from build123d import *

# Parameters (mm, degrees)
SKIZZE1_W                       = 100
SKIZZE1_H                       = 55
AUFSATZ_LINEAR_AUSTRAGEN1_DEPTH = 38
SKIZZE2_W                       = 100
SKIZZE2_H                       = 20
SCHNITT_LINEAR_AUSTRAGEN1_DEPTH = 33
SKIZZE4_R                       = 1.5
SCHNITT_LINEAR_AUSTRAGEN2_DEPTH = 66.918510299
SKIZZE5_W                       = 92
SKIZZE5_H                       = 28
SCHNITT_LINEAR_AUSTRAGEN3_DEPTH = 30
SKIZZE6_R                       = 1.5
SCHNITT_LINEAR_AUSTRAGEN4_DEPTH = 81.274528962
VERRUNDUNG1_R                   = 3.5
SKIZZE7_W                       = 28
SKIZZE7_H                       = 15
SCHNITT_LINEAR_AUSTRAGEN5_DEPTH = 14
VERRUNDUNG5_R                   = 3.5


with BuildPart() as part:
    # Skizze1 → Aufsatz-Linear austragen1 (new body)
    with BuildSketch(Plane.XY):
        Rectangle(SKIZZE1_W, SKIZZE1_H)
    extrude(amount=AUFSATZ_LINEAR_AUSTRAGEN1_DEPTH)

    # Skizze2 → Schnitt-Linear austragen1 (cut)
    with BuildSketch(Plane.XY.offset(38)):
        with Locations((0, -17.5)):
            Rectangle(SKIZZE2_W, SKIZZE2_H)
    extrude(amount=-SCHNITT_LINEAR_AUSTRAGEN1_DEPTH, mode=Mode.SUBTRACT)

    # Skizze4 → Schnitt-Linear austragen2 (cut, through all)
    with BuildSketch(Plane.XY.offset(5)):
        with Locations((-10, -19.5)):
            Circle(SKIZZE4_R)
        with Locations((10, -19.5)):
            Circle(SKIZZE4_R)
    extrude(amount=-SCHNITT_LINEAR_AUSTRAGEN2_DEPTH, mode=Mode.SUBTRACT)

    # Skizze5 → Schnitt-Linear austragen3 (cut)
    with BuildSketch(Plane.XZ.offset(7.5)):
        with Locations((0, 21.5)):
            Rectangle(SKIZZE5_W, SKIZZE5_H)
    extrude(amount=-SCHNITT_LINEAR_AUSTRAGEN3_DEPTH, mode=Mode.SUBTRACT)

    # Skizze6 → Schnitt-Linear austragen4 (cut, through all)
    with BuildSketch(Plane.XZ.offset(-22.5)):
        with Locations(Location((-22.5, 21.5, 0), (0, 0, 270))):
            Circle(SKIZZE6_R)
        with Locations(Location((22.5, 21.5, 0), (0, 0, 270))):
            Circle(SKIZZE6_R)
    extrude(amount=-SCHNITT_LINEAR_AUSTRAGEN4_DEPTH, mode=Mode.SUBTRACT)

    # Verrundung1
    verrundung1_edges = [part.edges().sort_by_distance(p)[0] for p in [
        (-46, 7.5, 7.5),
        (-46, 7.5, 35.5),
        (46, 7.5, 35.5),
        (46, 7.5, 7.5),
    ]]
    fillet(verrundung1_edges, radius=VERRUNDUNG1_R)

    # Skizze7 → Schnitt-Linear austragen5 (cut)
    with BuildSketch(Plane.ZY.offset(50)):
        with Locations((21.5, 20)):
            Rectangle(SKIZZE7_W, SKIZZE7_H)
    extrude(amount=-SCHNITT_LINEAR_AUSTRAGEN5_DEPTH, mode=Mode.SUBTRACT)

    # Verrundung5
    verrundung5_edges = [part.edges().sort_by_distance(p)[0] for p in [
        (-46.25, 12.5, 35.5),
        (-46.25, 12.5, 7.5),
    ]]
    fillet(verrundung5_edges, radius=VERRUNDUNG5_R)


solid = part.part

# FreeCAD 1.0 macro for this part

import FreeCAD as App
import Part
import Sketcher

V = App.Vector
Q = App.Units.Quantity


def edges_at(feature, points):
    """Names of the edges that pass closest to the given points."""
    edges = feature.Shape.Edges
    near = lambda p: min(range(len(edges)), key=lambda i: edges[i].distToShape(Part.Vertex(*p))[0])
    return sorted({f"Edge{near(p) + 1}" for p in points})

doc = App.newDocument("Part")
body = doc.addObject("PartDesign::Body", "Body")

sketch1 = body.newObject("Sketcher::SketchObject", "Sketch")
sketch1.AttachmentSupport = (doc.getObject("XY_Plane"), [""])
sketch1.MapMode = "FlatFace"
sketch1.addGeometry([
    Part.LineSegment(V(-50, 28, 0), V(-50, -28, 0)),
    Part.LineSegment(V(-50, -28, 0), V(50, -28, 0)),
    Part.LineSegment(V(50, -28, 0), V(50, 28, 0)),
    Part.LineSegment(V(50, 28, 0), V(-50, 28, 0)),
], False)
sketch1.addConstraint([
    Sketcher.Constraint("Coincident", 0, 2, 1, 1),
    Sketcher.Constraint("Coincident", 1, 2, 2, 1),
    Sketcher.Constraint("Coincident", 2, 2, 3, 1),
    Sketcher.Constraint("Coincident", 3, 2, 0, 1),
    Sketcher.Constraint("Vertical", 0),
    Sketcher.Constraint("Horizontal", 1),
    Sketcher.Constraint("Vertical", 2),
    Sketcher.Constraint("Horizontal", 3),
    Sketcher.Constraint("Symmetric", 0, 2, 2, 2, -1, 1),
    Sketcher.Constraint("DistanceX", 1, 1, 1, 2, Q("100 mm")),
    Sketcher.Constraint("DistanceY", 0, 2, 0, 1, Q("55 mm")),
])
pad1 = body.newObject("PartDesign::Pad", "Pad")
pad1.Profile = sketch1
pad1.Length = 38

sketch2 = body.newObject("Sketcher::SketchObject", "Sketch001")
sketch2.AttachmentSupport = (doc.getObject("XY_Plane"), [""])
sketch2.MapMode = "FlatFace"
sketch2.AttachmentOffset = App.Placement(V(0, 0, 38), App.Rotation())
sketch2.addGeometry([
    Part.LineSegment(V(-50, -8, 0), V(-50, -28, 0)),
    Part.LineSegment(V(-50, -28, 0), V(50, -28, 0)),
    Part.LineSegment(V(50, -28, 0), V(50, -8, 0)),
    Part.LineSegment(V(50, -8, 0), V(-50, -8, 0)),
], False)
sketch2.addConstraint([
    Sketcher.Constraint("Coincident", 0, 2, 1, 1),
    Sketcher.Constraint("Coincident", 1, 2, 2, 1),
    Sketcher.Constraint("Coincident", 2, 2, 3, 1),
    Sketcher.Constraint("Coincident", 3, 2, 0, 1),
    Sketcher.Constraint("Vertical", 0),
    Sketcher.Constraint("Horizontal", 1),
    Sketcher.Constraint("Vertical", 2),
    Sketcher.Constraint("Horizontal", 3),
    Sketcher.Constraint("DistanceX", 1, 1, 1, 2, Q("100 mm")),
    Sketcher.Constraint("DistanceY", 0, 2, 0, 1, Q("20 mm")),
    Sketcher.Constraint("DistanceX", 0, 2, -1, 1, Q("50 mm")),
    Sketcher.Constraint("DistanceY", 0, 2, -1, 1, Q("27.5 mm")),
])
pocket1 = body.newObject("PartDesign::Pocket", "Pocket")
pocket1.Profile = sketch2
pocket1.Length = 33

sketch3 = body.newObject("Sketcher::SketchObject", "Sketch002")
sketch3.AttachmentSupport = (doc.getObject("XY_Plane"), [""])
sketch3.MapMode = "FlatFace"
sketch3.AttachmentOffset = App.Placement(V(0, 0, 5), App.Rotation())
sketch3.addGeometry([
    Part.Circle(V(-10, -19.5, 0), V(0, 0, 1), 1.5),
    Part.Circle(V(10, -19.5, 0), V(0, 0, 1), 1.5),
], False)
sketch3.addConstraint([
    Sketcher.Constraint("Equal", 0, 1),
    Sketcher.Constraint("Symmetric", 0, 3, 1, 3, -2),
    Sketcher.Constraint("Diameter", 0, Q("3 mm")),
    Sketcher.Constraint("DistanceX", 0, 3, -1, 1, Q("10 mm")),
    Sketcher.Constraint("DistanceY", 0, 3, -1, 1, Q("19.5 mm")),
])
pocket2 = body.newObject("PartDesign::Pocket", "Pocket001")
pocket2.Profile = sketch3
pocket2.Type = "ThroughAll"

sketch4 = body.newObject("Sketcher::SketchObject", "Sketch003")
sketch4.AttachmentSupport = (doc.getObject("XZ_Plane"), [""])
sketch4.MapMode = "FlatFace"
sketch4.AttachmentOffset = App.Placement(V(0, 0, 7.5), App.Rotation())
sketch4.addGeometry([
    Part.LineSegment(V(-46, 36, 0), V(-46, 8, 0)),
    Part.LineSegment(V(-46, 8, 0), V(46, 8, 0)),
    Part.LineSegment(V(46, 8, 0), V(46, 36, 0)),
    Part.LineSegment(V(46, 36, 0), V(-46, 36, 0)),
], False)
sketch4.addConstraint([
    Sketcher.Constraint("Coincident", 0, 2, 1, 1),
    Sketcher.Constraint("Coincident", 1, 2, 2, 1),
    Sketcher.Constraint("Coincident", 2, 2, 3, 1),
    Sketcher.Constraint("Coincident", 3, 2, 0, 1),
    Sketcher.Constraint("Vertical", 0),
    Sketcher.Constraint("Horizontal", 1),
    Sketcher.Constraint("Vertical", 2),
    Sketcher.Constraint("Horizontal", 3),
    Sketcher.Constraint("DistanceX", 1, 1, 1, 2, Q("92 mm")),
    Sketcher.Constraint("DistanceY", 0, 2, 0, 1, Q("28 mm")),
    Sketcher.Constraint("DistanceX", 0, 2, -1, 1, Q("46 mm")),
    Sketcher.Constraint("DistanceY", -1, 1, 0, 2, Q("7.5 mm")),
])
pocket3 = body.newObject("PartDesign::Pocket", "Pocket002")
pocket3.Profile = sketch4
pocket3.Length = 30

sketch5 = body.newObject("Sketcher::SketchObject", "Sketch004")
sketch5.AttachmentSupport = (doc.getObject("XZ_Plane"), [""])
sketch5.MapMode = "FlatFace"
sketch5.AttachmentOffset = App.Placement(V(0, 0, -22.5), App.Rotation())
sketch5.addGeometry([
    Part.Circle(V(-22.5, 21.5, 0), V(0, 0, 1), 1.5),
    Part.Circle(V(22.5, 21.5, 0), V(0, 0, 1), 1.5),
], False)
sketch5.addConstraint([
    Sketcher.Constraint("Equal", 0, 1),
    Sketcher.Constraint("Symmetric", 0, 3, 1, 3, -2),
    Sketcher.Constraint("Diameter", 0, Q("3 mm")),
    Sketcher.Constraint("DistanceX", 0, 3, 1, 3, Q("45 mm")),
    Sketcher.Constraint("DistanceY", -1, 1, 0, 3, Q("21.5 mm")),
])
pocket4 = body.newObject("PartDesign::Pocket", "Pocket003")
pocket4.Profile = sketch5
pocket4.Type = "ThroughAll"
doc.recompute()

fillet = body.newObject("PartDesign::Fillet", "Fillet")
fillet.Base = (pocket4, edges_at(pocket4, [
    (-46, 7.5, 7.5),
    (-46, 7.5, 35.5),
    (46, 7.5, 35.5),
    (46, 7.5, 7.5),
]))
fillet.Radius = 3.5

sketch6 = body.newObject("Sketcher::SketchObject", "Sketch005")
sketch6.AttachmentSupport = (doc.getObject("YZ_Plane"), [""])
sketch6.MapMode = "FlatFace"
sketch6.AttachmentOffset = App.Placement(V(0, 0, -50), App.Rotation())
sketch6.addGeometry([
    Part.LineSegment(V(28, 8, 0), V(12, 8, 0)),
    Part.LineSegment(V(12, 8, 0), V(12, 36, 0)),
    Part.LineSegment(V(12, 36, 0), V(28, 36, 0)),
    Part.LineSegment(V(28, 36, 0), V(28, 8, 0)),
], False)
sketch6.addConstraint([
    Sketcher.Constraint("Coincident", 0, 2, 1, 1),
    Sketcher.Constraint("Coincident", 1, 2, 2, 1),
    Sketcher.Constraint("Coincident", 2, 2, 3, 1),
    Sketcher.Constraint("Coincident", 3, 2, 0, 1),
    Sketcher.Constraint("Horizontal", 0),
    Sketcher.Constraint("Vertical", 1),
    Sketcher.Constraint("Horizontal", 2),
    Sketcher.Constraint("Vertical", 3),
    Sketcher.Constraint("DistanceX", 0, 2, 0, 1, Q("15 mm")),
    Sketcher.Constraint("DistanceY", 1, 1, 1, 2, Q("28 mm")),
    Sketcher.Constraint("DistanceX", -1, 1, 0, 2, Q("12.5 mm")),
    Sketcher.Constraint("DistanceY", -1, 1, 0, 2, Q("7.5 mm")),
])
pocket5 = body.newObject("PartDesign::Pocket", "Pocket004")
pocket5.Profile = sketch6
pocket5.Length = 14
pocket5.Reversed = True
doc.recompute()

fillet2 = body.newObject("PartDesign::Fillet", "Fillet001")
fillet2.Base = (pocket5, edges_at(pocket5, [(-46.25, 12.5, 35.5), (-46.25, 12.5, 7.5)]))
fillet2.Radius = 3.5

doc.recompute()
